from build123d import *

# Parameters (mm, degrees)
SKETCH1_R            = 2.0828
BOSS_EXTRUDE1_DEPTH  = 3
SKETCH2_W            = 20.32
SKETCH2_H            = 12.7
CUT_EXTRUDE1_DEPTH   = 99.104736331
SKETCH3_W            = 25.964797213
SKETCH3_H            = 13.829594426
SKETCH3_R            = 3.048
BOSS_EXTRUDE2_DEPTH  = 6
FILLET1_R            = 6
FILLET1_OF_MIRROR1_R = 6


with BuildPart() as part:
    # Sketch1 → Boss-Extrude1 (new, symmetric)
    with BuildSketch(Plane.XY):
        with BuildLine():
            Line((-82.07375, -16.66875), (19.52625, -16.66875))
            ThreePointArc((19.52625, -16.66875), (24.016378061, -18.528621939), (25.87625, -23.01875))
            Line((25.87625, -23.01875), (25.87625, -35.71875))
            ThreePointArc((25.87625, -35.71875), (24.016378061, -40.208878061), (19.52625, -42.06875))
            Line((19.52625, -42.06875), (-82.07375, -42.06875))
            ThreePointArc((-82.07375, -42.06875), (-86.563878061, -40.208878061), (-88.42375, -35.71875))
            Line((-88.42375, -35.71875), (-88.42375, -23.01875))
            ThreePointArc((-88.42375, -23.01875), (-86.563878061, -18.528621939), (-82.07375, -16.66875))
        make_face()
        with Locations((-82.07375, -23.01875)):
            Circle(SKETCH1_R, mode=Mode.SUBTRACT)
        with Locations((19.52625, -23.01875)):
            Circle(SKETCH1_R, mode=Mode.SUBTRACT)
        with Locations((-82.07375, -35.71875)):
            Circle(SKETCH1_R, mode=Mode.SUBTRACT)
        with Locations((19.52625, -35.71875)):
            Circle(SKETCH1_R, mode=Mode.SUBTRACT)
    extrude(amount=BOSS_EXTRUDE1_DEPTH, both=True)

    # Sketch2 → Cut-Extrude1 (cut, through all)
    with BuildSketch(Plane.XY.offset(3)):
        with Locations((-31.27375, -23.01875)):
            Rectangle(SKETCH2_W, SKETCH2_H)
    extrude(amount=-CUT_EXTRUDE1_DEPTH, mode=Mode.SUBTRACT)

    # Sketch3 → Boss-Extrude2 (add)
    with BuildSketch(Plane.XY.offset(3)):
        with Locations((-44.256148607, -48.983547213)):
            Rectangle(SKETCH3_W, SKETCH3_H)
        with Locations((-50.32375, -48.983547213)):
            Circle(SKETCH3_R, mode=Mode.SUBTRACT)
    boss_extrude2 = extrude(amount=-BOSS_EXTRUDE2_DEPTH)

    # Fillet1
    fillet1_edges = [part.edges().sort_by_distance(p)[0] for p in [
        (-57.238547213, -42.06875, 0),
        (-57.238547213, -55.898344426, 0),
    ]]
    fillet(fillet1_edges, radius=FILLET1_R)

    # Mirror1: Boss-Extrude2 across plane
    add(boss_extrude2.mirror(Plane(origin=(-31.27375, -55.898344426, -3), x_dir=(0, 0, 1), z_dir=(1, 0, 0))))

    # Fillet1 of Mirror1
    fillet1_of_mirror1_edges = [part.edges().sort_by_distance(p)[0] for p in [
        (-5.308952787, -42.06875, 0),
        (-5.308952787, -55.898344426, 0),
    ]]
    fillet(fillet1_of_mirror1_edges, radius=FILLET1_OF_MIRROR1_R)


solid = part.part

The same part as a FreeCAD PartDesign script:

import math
import FreeCAD as App
import Part
import Sketcher
Q = App.Units.Quantity


def edges_at(feature, points):
    """Names of the edges that pass closest to the given points."""
    edges = feature.Shape.Edges
    near = lambda p: min(range(len(edges)), key=lambda i: edges[i].distToShape(Part.Vertex(*p))[0])
    return sorted({f"Edge{near(p) + 1}" for p in points})


def add_polygon(sketch, points):
    """Adds a closed chain of lines whose ends are joined by coincident constraints."""
    first, n = sketch.GeometryCount, len(points)
    for a, b in zip(points, points[1:] + points[:1]):
        sketch.addGeometry(Part.LineSegment(App.Vector(*a, 0), App.Vector(*b, 0)), False)
    for i in range(n):
        sketch.addConstraint(Sketcher.Constraint("Coincident", first + i, 2, first + (i + 1) % n, 1))

doc = App.newDocument("Part")
body = doc.addObject("PartDesign::Body", "Body")

sketch1 = body.newObject("Sketcher::SketchObject", "Sketch")
sketch1.AttachmentSupport = (doc.getObject("XY_Plane"), [""])
sketch1.MapMode = "FlatFace"
sketch1.addGeometry([
    Part.LineSegment(App.Vector(19.52625, -16.66875, 0), App.Vector(-82.07375, -16.66875, 0)),
    Part.ArcOfCircle(Part.Circle(App.Vector(-82.07375, -23.01875, 0), App.Vector(0, 0, 1), 6.35), math.radians(90), math.radians(180)),
    Part.LineSegment(App.Vector(-88.42375, -23.01875, 0), App.Vector(-88.42375, -35.71875, 0)),
    Part.ArcOfCircle(Part.Circle(App.Vector(-82.07375, -35.71875, 0), App.Vector(0, 0, 1), 6.35), math.radians(180), math.radians(270)),
    Part.LineSegment(App.Vector(-82.07375, -42.06875, 0), App.Vector(19.52625, -42.06875, 0)),
    Part.ArcOfCircle(Part.Circle(App.Vector(19.52625, -35.71875, 0), App.Vector(0, 0, 1), 6.35), math.radians(-90), math.radians(0)),
    Part.LineSegment(App.Vector(25.87625, -35.71875, 0), App.Vector(25.87625, -23.01875, 0)),
    Part.ArcOfCircle(Part.Circle(App.Vector(19.52625, -23.01875, 0), App.Vector(0, 0, 1), 6.35), math.radians(0), math.radians(90)),
    Part.Circle(App.Vector(19.52625, -35.71875, 0), App.Vector(0, 0, 1), 2.0828),
    Part.Circle(App.Vector(-82.07375, -35.71875, 0), App.Vector(0, 0, 1), 2.0828),
    Part.Circle(App.Vector(19.52625, -23.01875, 0), App.Vector(0, 0, 1), 2.0828),
    Part.Circle(App.Vector(-82.07375, -23.01875, 0), App.Vector(0, 0, 1), 2.0828),
], False)
sketch1.addConstraint([
    Sketcher.Constraint("Tangent", 0, 2, 1, 1),
    Sketcher.Constraint("Tangent", 1, 2, 2, 1),
    Sketcher.Constraint("Tangent", 2, 2, 3, 1),
    Sketcher.Constraint("Tangent", 3, 2, 4, 1),
    Sketcher.Constraint("Tangent", 4, 2, 5, 1),
    Sketcher.Constraint("Tangent", 5, 2, 6, 1),
    Sketcher.Constraint("Tangent", 6, 2, 7, 1),
    Sketcher.Constraint("Tangent", 7, 2, 0, 1),
    Sketcher.Constraint("Horizontal", 0),
    Sketcher.Constraint("Vertical", 2),
    Sketcher.Constraint("Horizontal", 4),
    Sketcher.Constraint("Vertical", 6),
    Sketcher.Constraint("Coincident", 8, 3, 5, 3),
    Sketcher.Constraint("Coincident", 9, 3, 3, 3),
    Sketcher.Constraint("Coincident", 10, 3, 7, 3),
    Sketcher.Constraint("Coincident", 11, 3, 1, 3),
    Sketcher.Constraint("Equal", 1, 3),
    Sketcher.Constraint("Equal", 3, 5),
    Sketcher.Constraint("Equal", 5, 7),
    Sketcher.Constraint("Equal", 8, 9),
    Sketcher.Constraint("Equal", 9, 10),
    Sketcher.Constraint("Equal", 10, 11),
    Sketcher.Constraint("DistanceX", 0, 2, 0, 1, Q("4 in")),
    Sketcher.Constraint("Radius", 1, Q("0.25 in")),
    Sketcher.Constraint("Diameter", 8, Q("0.164 in")),
    Sketcher.Constraint("DistanceY", 2, 2, 2, 1, Q("0.5 in")),
    Sketcher.Constraint("DistanceY", 1, 3, -1, 1, Q("0.90625 in")),
    Sketcher.Constraint("DistanceX", 1, 3, -1, 1, 82.07375),
])
pad1 = body.newObject("PartDesign::Pad", "Pad")
pad1.Profile = sketch1
pad1.Length = 6
pad1.Midplane = True

sketch2 = body.newObject("Sketcher::SketchObject", "Sketch001")
sketch2.AttachmentSupport = (doc.getObject("XY_Plane"), [""])
sketch2.MapMode = "FlatFace"
sketch2.AttachmentOffset = App.Placement(App.Vector(0, 0, 3), App.Rotation())
add_polygon(sketch2, [(-41.43375, -16.66875), (-41.43375, -29.36875), (-21.11375, -29.36875), (-21.11375, -16.66875)])
sketch2.addConstraint([
    Sketcher.Constraint("Vertical", 0),
    Sketcher.Constraint("Horizontal", 1),
    Sketcher.Constraint("Vertical", 2),
    Sketcher.Constraint("Horizontal", 3),
    Sketcher.Constraint("DistanceX", 1, 1, 1, 2, Q("0.8 in")),
    Sketcher.Constraint("DistanceY", 0, 2, 0, 1, Q("0.5 in")),
    Sketcher.Constraint("DistanceY", 0, 2, -1, 1, Q("1.15625 in")),
    Sketcher.Constraint("DistanceX", 0, 2, -1, 1, 41.43375),
])
pocket1 = body.newObject("PartDesign::Pocket", "Pocket")
pocket1.Profile = sketch2
pocket1.Type = "ThroughAll"

sketch3 = body.newObject("Sketcher::SketchObject", "Sketch002")
sketch3.AttachmentSupport = (doc.getObject("XY_Plane"), [""])
sketch3.MapMode = "FlatFace"
sketch3.AttachmentOffset = App.Placement(App.Vector(0, 0, 3), App.Rotation())
add_polygon(sketch3, [(-57.238547, -42.06875), (-57.238547, -55.898344), (-31.27375, -55.898344), (-31.27375, -42.06875)])
sketch3.addGeometry(Part.Circle(App.Vector(-50.32375, -48.983547, 0), App.Vector(0, 0, 1), 3.048), False)
sketch3.addConstraint([
    Sketcher.Constraint("Vertical", 0),
    Sketcher.Constraint("Horizontal", 1),
    Sketcher.Constraint("Vertical", 2),
    Sketcher.Constraint("Horizontal", 3),
    Sketcher.Constraint("Diameter", 4, Q("0.24 in")),
    Sketcher.Constraint("DistanceX", 4, 3, 1, 2, Q("0.75 in")),
    Sketcher.Constraint("DistanceY", 2, 2, -1, 1, Q("1.65625 in")),
    Sketcher.Constraint("DistanceX", 1, 1, 1, 2, 25.964797),
    Sketcher.Constraint("DistanceY", 0, 2, 0, 1, 13.829594),
    Sketcher.Constraint("DistanceX", 4, 3, -1, 1, 50.32375),
    Sketcher.Constraint("DistanceY", 4, 3, -1, 1, 48.983547),
])
pad2 = body.newObject("PartDesign::Pad", "Pad001")
pad2.Profile = sketch3
pad2.Length = 6
pad2.Reversed = True
doc.recompute()

fillet = body.newObject("PartDesign::Fillet", "Fillet")
fillet.Base = (pad2, edges_at(pad2, [(-57.239, -42.069, 0), (-57.239, -55.898, 0)]))
fillet.Radius = 6
doc.recompute()

datumplane = body.newObject("PartDesign::Plane", "DatumPlane")
datumplane.AttachmentSupport = (doc.getObject("YZ_Plane"), [""])
datumplane.MapMode = "FlatFace"
datumplane.AttachmentOffset = App.Placement(App.Vector(0, 0, -31.27375), App.Rotation())
mirrored = body.newObject("PartDesign::Mirrored", "Mirrored")
mirrored.Originals = [pad2]
mirrored.MirrorPlane = (datumplane, [""])
body.Tip = mirrored
doc.recompute()

fillet2 = body.newObject("PartDesign::Fillet", "Fillet001")
fillet2.Base = (mirrored, edges_at(mirrored, [(-5.309, -42.069, 0), (-5.309, -55.898, 0)]))
fillet2.Radius = 6

doc.recompute()
